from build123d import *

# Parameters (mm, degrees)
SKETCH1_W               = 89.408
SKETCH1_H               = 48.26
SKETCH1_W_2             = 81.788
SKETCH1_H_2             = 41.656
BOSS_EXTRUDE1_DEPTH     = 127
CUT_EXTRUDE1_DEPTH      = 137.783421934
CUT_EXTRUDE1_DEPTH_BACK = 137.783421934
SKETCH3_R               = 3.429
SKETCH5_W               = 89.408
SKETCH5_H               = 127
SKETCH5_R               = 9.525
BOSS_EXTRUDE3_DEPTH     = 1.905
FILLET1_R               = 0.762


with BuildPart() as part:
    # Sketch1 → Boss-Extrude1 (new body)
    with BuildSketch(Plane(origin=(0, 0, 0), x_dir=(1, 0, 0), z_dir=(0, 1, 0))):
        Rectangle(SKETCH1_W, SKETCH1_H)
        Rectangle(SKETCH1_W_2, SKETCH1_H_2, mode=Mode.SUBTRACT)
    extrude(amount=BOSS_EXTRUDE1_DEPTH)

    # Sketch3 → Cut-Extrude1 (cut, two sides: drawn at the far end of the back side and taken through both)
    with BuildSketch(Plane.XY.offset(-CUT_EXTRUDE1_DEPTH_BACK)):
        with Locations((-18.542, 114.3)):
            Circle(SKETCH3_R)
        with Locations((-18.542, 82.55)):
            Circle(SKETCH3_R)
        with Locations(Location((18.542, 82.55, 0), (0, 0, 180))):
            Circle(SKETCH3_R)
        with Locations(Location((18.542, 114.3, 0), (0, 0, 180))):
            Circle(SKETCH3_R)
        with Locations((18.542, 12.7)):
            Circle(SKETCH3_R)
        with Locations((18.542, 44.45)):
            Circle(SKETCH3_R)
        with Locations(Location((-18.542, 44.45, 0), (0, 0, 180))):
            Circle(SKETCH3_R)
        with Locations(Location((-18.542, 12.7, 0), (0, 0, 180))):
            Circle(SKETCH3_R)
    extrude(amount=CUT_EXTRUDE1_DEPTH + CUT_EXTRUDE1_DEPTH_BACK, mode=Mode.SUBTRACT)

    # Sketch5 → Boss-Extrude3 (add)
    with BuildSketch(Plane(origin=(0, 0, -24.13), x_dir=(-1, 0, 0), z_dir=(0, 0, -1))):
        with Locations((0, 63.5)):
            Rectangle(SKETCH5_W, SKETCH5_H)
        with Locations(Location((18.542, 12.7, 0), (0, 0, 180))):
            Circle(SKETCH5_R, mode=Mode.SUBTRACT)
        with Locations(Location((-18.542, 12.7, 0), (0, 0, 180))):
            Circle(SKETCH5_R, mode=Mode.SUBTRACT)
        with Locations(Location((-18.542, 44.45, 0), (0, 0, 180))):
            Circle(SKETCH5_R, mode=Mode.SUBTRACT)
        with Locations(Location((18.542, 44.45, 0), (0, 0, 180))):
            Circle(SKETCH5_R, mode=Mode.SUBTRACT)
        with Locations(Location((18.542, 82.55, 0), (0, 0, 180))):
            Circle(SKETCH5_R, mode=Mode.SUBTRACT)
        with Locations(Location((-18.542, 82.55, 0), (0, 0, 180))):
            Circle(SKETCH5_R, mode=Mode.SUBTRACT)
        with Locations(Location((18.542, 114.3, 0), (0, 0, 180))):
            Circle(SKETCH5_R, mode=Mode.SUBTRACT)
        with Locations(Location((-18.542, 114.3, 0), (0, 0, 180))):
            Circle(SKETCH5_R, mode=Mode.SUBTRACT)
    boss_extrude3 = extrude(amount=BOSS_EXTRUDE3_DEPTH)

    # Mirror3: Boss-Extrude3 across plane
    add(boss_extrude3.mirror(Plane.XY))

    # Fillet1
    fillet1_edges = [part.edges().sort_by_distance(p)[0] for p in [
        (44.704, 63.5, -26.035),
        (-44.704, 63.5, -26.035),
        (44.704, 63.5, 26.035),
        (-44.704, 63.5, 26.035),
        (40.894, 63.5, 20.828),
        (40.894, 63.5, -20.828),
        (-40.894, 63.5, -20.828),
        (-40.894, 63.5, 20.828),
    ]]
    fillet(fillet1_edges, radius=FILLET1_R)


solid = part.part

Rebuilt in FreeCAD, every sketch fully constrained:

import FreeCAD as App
import Part
import Sketcher
Q = App.Units.Quantity


def edges_at(feature, points):
    """Names of the edges that pass closest to the given points."""
    edges = feature.Shape.Edges
    near = lambda p: min(range(len(edges)), key=lambda i: edges[i].distToShape(Part.Vertex(*p))[0])
    return sorted({f"Edge{near(p) + 1}" for p in points})

doc = App.newDocument("Part")
body = doc.addObject("PartDesign::Body", "Body")

sketch1 = doc.addObject("Sketcher::SketchObject", "Sketch")
body.addObject(sketch1)
sketch1.AttachmentSupport = (doc.XZ_Plane, [""])
sketch1.MapMode = "FlatFace"
sketch1.addGeometry([
    Part.LineSegment(App.Vector(-44.704, -24.13, 0), App.Vector(-44.704, 24.13, 0)),
    Part.LineSegment(App.Vector(-44.704, 24.13, 0), App.Vector(44.704, 24.13, 0)),
    Part.LineSegment(App.Vector(44.704, 24.13, 0), App.Vector(44.704, -24.13, 0)),
    Part.LineSegment(App.Vector(44.704, -24.13, 0), App.Vector(-44.704, -24.13, 0)),
    Part.LineSegment(App.Vector(40.894, 20.828, 0), App.Vector(-40.894, 20.828, 0)),
    Part.LineSegment(App.Vector(-40.894, 20.828, 0), App.Vector(-40.894, -20.828, 0)),
    Part.LineSegment(App.Vector(-40.894, -20.828, 0), App.Vector(40.894, -20.828, 0)),
    Part.LineSegment(App.Vector(40.894, -20.828, 0), App.Vector(40.894, 20.828, 0)),
], False)
sketch1.addConstraint([
    Sketcher.Constraint("Coincident", 0, 2, 1, 1),
    Sketcher.Constraint("Coincident", 1, 2, 2, 1),
    Sketcher.Constraint("Coincident", 2, 2, 3, 1),
    Sketcher.Constraint("Coincident", 3, 2, 0, 1),
    Sketcher.Constraint("Coincident", 4, 2, 5, 1),
    Sketcher.Constraint("Coincident", 5, 2, 6, 1),
    Sketcher.Constraint("Coincident", 6, 2, 7, 1),
    Sketcher.Constraint("Coincident", 7, 2, 4, 1),
    Sketcher.Constraint("Vertical", 0),
    Sketcher.Constraint("Horizontal", 1),
    Sketcher.Constraint("Vertical", 2),
    Sketcher.Constraint("Horizontal", 3),
    Sketcher.Constraint("Horizontal", 4),
    Sketcher.Constraint("Vertical", 5),
    Sketcher.Constraint("Horizontal", 6),
    Sketcher.Constraint("Vertical", 7),
    Sketcher.Constraint("Symmetric", 0, 2, 2, 2, -1, 1),
    Sketcher.Constraint("Symmetric", 4, 2, 6, 2, -1, 1),
    Sketcher.Constraint("DistanceY", 0, 1, 0, 2, Q("1.9 in")),
    Sketcher.Constraint("DistanceX", 1, 1, 1, 2, Q("3.52 in")),
    Sketcher.Constraint("DistanceX", 4, 2, 4, 1, Q("3.22 in")),
    Sketcher.Constraint("DistanceY", 5, 2, 5, 1, Q("1.64 in")),
])
pad1 = doc.addObject("PartDesign::Pad", "Pad")
body.addObject(pad1)
pad1.Profile = sketch1
pad1.Length = Q("5 in")
pad1.Reversed = True

sketch2 = doc.addObject("Sketcher::SketchObject", "Sketch001")
body.addObject(sketch2)
sketch2.AttachmentSupport = (doc.XY_Plane, [""])
sketch2.MapMode = "FlatFace"
sketch2.addGeometry([
    Part.Circle(App.Vector(-18.542, 114.3, 0), App.Vector(0, 0, 1), 3.429),
    Part.Circle(App.Vector(-18.542, 82.55, 0), App.Vector(0, 0, 1), 3.429),
    Part.Circle(App.Vector(18.542, 82.55, 0), App.Vector(0, 0, 1), 3.429),
    Part.Circle(App.Vector(18.542, 114.3, 0), App.Vector(0, 0, 1), 3.429),
    Part.Circle(App.Vector(18.542, 12.7, 0), App.Vector(0, 0, 1), 3.429),
    Part.Circle(App.Vector(18.542, 44.45, 0), App.Vector(0, 0, 1), 3.429),
    Part.Circle(App.Vector(-18.542, 44.45, 0), App.Vector(0, 0, 1), 3.429),
    Part.Circle(App.Vector(-18.542, 12.7, 0), App.Vector(0, 0, 1), 3.429),
], False)
sketch2.addConstraint([
    Sketcher.Constraint("Equal", 0, 1),
    Sketcher.Constraint("Equal", 1, 2),
    Sketcher.Constraint("Equal", 2, 3),
    Sketcher.Constraint("Equal", 3, 4),
    Sketcher.Constraint("Equal", 4, 5),
    Sketcher.Constraint("Equal", 5, 6),
    Sketcher.Constraint("Equal", 6, 7),
    Sketcher.Constraint("Symmetric", 1, 3, 2, 3, -2),
    Sketcher.Constraint("Symmetric", 0, 3, 3, 3, -2),
    Sketcher.Constraint("Symmetric", 5, 3, 6, 3, -2),
    Sketcher.Constraint("Symmetric", 4, 3, 7, 3, -2),
    Sketcher.Constraint("Vertical", 0, 3, 1, 3),
    Sketcher.Constraint("Vertical", 3, 3, 4, 3),
    Sketcher.Constraint("Vertical", 4, 3, 5, 3),
    Sketcher.Constraint("Diameter", 0, Q("0.27 in")),
    Sketcher.Constraint("DistanceY", 4, 3, 3, 3, Q("4 in")),
    Sketcher.Constraint("DistanceY", -1, 1, 0, 3, Q("4.5 in")),
    Sketcher.Constraint("DistanceY", 5, 3, 2, 3, Q("1.5 in")),
    Sketcher.Constraint("DistanceX", 0, 3, -1, 1, Q("0.73 in")),
    Sketcher.Constraint("DistanceY", -1, 1, 1, 3, Q("3.25 in")),
])
pocket1 = doc.addObject("PartDesign::Pocket", "Pocket")
body.addObject(pocket1)
pocket1.Profile = sketch2
pocket1.Type = "ThroughAll"
pocket1.Midplane = True

sketch3 = doc.addObject("Sketcher::SketchObject", "Sketch002")
body.addObject(sketch3)
sketch3.AttachmentSupport = (doc.XY_Plane, [""])
sketch3.MapMode = "FlatFace"
sketch3.AttachmentOffset = App.Placement(App.Vector(0, 0, -0.95 * 25.4), App.Rotation())
sketch3.addGeometry([
    Part.LineSegment(App.Vector(44.704, 127, 0), App.Vector(44.704, 0, 0)),
    Part.LineSegment(App.Vector(44.704, 0, 0), App.Vector(-44.704, 0, 0)),
    Part.LineSegment(App.Vector(-44.704, 0, 0), App.Vector(-44.704, 127, 0)),
    Part.LineSegment(App.Vector(-44.704, 127, 0), App.Vector(44.704, 127, 0)),
    Part.Circle(App.Vector(18.542, 12.7, 0), App.Vector(0, 0, 1), 9.525),
    Part.Circle(App.Vector(18.542, 44.45, 0), App.Vector(0, 0, 1), 9.525),
    Part.Circle(App.Vector(-18.542, 12.7, 0), App.Vector(0, 0, 1), 9.525),
    Part.Circle(App.Vector(-18.542, 44.45, 0), App.Vector(0, 0, 1), 9.525),
    Part.Circle(App.Vector(18.542, 82.55, 0), App.Vector(0, 0, 1), 9.525),
    Part.Circle(App.Vector(18.542, 114.3, 0), App.Vector(0, 0, 1), 9.525),
    Part.Circle(App.Vector(-18.542, 82.55, 0), App.Vector(0, 0, 1), 9.525),
    Part.Circle(App.Vector(-18.542, 114.3, 0), App.Vector(0, 0, 1), 9.525),
], False)
sketch3.addConstraint([
    Sketcher.Constraint("Coincident", 0, 2, 1, 1),
    Sketcher.Constraint("Coincident", 1, 2, 2, 1),
    Sketcher.Constraint("Coincident", 2, 2, 3, 1),
    Sketcher.Constraint("Coincident", 3, 2, 0, 1),
    Sketcher.Constraint("Vertical", 0),
    Sketcher.Constraint("Horizontal", 1),
    Sketcher.Constraint("Vertical", 2),
    Sketcher.Constraint("Horizontal", 3),
    Sketcher.Constraint("Equal", 4, 5),
    Sketcher.Constraint("Equal", 5, 6),
    Sketcher.Constraint("Equal", 6, 7),
    Sketcher.Constraint("Equal", 7, 8),
    Sketcher.Constraint("Equal", 8, 9),
    Sketcher.Constraint("Equal", 9, 10),
    Sketcher.Constraint("Equal", 10, 11),
    Sketcher.Constraint("Symmetric", 0, 2, 1, 2, -1, 1),
    Sketcher.Constraint("Symmetric", 4, 3, 6, 3, -2),
    Sketcher.Constraint("Symmetric", 5, 3, 7, 3, -2),
    Sketcher.Constraint("Symmetric", 8, 3, 10, 3, -2),
    Sketcher.Constraint("Symmetric", 9, 3, 11, 3, -2),
    Sketcher.Constraint("Vertical", 4, 3, 5, 3),
    Sketcher.Constraint("Vertical", 5, 3, 8, 3),
    Sketcher.Constraint("Vertical", 8, 3, 9, 3),
    Sketcher.Constraint("Diameter", 4, Q("0.75 in")),
    Sketcher.Constraint("DistanceY", 0, 2, 0, 1, Q("5 in")),
    Sketcher.Constraint("DistanceY", 4, 3, 9, 3, Q("4 in")),
    Sketcher.Constraint("DistanceX", 1, 2, 1, 1, Q("3.52 in")),
    Sketcher.Constraint("DistanceY", -1, 1, 4, 3, Q("0.5 in")),
    Sketcher.Constraint("DistanceY", 5, 3, 8, 3, Q("1.5 in")),
    Sketcher.Constraint("DistanceX", -1, 1, 4, 3, Q("0.73 in")),
    Sketcher.Constraint("DistanceY", -1, 1, 5, 3, Q("1.75 in")),
])
pad2 = doc.addObject("PartDesign::Pad", "Pad001")
body.addObject(pad2)
pad2.Profile = sketch3
pad2.Length = Q("0.075 in")
pad2.Reversed = True
doc.recompute()

mirrored = doc.addObject("PartDesign::Mirrored", "Mirrored")
body.addObject(mirrored)
mirrored.Originals = [pad2]
mirrored.MirrorPlane = (doc.XY_Plane, [""])
body.Tip = mirrored
doc.recompute()

fillet = doc.addObject("PartDesign::Fillet", "Fillet")
body.addObject(fillet)
fillet.Base = (mirrored, edges_at(mirrored, [
    (44.704, 63.5, -26.035),
    (-44.704, 63.5, -26.035),
    (44.704, 63.5, 26.035),
    (-44.704, 63.5, 26.035),
    (40.894, 63.5, 20.828),
    (40.894, 63.5, -20.828),
    (-40.894, 63.5, -20.828),
    (-40.894, 63.5, 20.828),
]))
fillet.Radius = Q("0.03 in")

doc.recompute()
